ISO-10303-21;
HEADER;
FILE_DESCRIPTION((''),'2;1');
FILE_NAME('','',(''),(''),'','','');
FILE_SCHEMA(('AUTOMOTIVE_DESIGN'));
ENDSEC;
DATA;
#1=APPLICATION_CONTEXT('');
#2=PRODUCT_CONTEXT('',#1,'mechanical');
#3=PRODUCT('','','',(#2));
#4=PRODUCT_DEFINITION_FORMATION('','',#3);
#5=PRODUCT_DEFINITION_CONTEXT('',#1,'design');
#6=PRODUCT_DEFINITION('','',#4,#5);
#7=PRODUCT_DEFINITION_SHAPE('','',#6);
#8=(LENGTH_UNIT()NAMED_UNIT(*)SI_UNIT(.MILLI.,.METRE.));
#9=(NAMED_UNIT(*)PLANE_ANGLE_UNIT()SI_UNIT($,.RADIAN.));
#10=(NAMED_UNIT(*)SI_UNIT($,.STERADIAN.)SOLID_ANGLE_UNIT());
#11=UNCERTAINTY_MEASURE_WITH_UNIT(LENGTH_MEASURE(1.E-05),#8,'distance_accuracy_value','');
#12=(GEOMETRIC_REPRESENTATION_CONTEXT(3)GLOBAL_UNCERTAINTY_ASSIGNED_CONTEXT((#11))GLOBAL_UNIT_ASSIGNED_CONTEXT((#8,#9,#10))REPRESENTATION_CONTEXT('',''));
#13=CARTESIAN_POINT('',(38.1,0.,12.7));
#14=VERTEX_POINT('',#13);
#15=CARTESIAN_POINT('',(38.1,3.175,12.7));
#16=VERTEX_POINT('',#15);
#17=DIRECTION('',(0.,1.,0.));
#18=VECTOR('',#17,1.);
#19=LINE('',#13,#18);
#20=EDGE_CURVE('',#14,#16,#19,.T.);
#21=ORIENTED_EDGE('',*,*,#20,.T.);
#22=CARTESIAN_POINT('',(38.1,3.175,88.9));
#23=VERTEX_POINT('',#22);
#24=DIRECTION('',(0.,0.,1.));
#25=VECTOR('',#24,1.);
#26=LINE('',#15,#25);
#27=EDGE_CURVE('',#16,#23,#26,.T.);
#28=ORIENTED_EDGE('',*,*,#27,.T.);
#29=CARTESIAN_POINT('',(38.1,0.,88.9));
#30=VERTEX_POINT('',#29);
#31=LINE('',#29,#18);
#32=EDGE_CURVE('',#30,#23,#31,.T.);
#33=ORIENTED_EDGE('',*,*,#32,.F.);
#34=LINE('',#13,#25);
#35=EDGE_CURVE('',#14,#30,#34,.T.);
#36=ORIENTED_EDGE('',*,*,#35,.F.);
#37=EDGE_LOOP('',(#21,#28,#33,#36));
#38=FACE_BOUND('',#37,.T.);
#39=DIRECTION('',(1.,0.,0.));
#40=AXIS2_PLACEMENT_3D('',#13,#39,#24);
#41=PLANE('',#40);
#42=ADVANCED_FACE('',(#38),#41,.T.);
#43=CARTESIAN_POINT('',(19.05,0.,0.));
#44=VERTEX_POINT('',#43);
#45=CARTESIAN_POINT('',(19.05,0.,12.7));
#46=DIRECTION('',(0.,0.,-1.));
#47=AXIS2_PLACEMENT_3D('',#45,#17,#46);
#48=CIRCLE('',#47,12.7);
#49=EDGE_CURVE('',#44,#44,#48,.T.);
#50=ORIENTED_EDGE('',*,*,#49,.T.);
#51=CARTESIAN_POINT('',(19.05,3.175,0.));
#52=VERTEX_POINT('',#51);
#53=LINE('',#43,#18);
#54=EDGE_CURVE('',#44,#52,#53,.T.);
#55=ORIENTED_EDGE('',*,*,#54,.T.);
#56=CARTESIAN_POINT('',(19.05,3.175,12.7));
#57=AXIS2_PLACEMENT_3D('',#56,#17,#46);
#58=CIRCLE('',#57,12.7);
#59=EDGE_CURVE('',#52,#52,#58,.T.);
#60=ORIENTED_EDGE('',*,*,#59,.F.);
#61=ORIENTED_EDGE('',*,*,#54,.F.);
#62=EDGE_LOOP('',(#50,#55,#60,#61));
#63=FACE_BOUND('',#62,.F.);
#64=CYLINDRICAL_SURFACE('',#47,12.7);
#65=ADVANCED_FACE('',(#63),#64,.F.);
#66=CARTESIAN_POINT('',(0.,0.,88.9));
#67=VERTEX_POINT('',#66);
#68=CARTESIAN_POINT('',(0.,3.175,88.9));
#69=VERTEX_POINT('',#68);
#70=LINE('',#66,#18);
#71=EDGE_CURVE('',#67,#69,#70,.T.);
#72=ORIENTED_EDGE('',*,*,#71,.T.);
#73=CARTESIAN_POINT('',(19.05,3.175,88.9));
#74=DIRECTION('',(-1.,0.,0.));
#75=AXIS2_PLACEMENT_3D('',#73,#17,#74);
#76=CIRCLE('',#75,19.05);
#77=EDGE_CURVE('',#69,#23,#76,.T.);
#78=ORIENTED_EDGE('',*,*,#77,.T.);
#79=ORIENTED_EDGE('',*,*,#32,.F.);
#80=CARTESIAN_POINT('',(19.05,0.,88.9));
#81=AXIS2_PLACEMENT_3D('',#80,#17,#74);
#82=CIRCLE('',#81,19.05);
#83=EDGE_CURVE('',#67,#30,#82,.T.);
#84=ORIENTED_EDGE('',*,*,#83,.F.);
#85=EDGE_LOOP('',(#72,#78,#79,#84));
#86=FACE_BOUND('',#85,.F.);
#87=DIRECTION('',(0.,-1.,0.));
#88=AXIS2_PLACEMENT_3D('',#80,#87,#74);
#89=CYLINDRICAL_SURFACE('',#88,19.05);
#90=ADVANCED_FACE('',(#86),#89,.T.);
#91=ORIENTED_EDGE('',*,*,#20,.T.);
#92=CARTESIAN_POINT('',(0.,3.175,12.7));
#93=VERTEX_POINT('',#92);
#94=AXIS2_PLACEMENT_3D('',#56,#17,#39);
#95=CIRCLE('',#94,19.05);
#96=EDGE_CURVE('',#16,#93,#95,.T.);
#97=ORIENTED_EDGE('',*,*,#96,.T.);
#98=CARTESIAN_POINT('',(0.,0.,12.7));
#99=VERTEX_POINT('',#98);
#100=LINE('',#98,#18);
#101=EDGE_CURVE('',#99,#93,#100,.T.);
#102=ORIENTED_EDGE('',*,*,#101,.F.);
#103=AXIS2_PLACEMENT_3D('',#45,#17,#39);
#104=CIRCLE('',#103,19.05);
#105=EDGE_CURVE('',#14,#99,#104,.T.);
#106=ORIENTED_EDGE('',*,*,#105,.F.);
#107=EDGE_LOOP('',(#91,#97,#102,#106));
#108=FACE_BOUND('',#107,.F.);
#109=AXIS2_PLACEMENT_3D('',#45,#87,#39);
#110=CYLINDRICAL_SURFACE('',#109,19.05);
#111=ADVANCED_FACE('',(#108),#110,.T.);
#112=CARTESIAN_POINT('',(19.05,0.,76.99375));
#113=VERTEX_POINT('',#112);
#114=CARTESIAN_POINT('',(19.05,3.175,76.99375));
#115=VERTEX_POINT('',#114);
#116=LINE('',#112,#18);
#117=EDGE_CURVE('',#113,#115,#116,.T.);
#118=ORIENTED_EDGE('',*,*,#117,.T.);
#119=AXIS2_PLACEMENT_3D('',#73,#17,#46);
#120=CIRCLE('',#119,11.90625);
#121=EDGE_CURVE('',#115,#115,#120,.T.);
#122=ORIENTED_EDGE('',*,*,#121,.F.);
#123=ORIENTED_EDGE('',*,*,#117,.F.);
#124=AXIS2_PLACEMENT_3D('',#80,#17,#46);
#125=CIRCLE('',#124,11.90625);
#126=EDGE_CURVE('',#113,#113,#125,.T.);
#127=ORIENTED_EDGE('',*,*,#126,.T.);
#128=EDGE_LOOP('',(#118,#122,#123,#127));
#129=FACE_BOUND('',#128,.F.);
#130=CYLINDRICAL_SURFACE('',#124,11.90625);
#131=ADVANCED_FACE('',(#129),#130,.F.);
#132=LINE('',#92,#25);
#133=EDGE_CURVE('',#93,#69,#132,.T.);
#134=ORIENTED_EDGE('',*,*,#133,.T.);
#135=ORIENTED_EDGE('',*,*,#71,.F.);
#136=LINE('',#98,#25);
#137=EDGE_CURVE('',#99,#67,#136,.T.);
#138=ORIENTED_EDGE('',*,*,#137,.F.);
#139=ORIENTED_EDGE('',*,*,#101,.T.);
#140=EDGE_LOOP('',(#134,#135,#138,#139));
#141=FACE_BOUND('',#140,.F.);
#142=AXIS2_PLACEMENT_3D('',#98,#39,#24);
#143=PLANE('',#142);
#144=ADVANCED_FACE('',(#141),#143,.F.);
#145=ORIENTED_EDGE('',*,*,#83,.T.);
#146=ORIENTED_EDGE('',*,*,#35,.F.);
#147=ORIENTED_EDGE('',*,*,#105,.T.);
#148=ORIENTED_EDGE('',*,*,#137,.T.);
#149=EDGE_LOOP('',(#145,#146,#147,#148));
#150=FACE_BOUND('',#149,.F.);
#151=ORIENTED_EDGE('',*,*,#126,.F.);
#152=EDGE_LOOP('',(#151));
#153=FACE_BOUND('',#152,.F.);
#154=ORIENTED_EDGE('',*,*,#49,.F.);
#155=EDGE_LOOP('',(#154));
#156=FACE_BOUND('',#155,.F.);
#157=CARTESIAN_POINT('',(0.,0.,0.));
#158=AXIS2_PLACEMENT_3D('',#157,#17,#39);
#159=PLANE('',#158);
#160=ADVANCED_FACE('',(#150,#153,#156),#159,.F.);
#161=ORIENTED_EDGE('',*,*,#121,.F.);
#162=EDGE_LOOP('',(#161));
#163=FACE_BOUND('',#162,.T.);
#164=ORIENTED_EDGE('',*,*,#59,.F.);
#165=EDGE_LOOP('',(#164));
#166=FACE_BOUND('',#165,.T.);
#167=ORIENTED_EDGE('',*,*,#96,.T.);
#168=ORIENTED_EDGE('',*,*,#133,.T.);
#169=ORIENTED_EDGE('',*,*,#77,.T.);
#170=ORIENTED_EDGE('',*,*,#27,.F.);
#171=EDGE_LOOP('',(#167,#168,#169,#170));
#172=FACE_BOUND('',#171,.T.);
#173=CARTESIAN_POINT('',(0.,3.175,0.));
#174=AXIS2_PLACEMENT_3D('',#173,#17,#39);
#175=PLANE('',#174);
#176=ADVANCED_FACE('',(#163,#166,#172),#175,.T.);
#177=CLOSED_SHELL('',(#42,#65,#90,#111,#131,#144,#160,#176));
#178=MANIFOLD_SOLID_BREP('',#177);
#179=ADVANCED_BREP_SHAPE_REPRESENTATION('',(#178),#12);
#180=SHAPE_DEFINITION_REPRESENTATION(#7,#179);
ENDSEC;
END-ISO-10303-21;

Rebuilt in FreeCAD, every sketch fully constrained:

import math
import FreeCAD as App
import Part
import Sketcher
from FreeCAD import Vector
Q = App.Units.Quantity

doc = App.newDocument("Part")
body = doc.addObject("PartDesign::Body", "Body")

# Sketch on XZ plane
sketch1 = body.newObject("Sketcher::SketchObject", "Sketch")
sketch1.AttachmentSupport = (doc.getObject("XZ_Plane"), [""])
sketch1.MapMode = "FlatFace"
sketch1.addGeometry(Part.LineSegment(Vector(38.1, 88.9, 0), Vector(38.1, 12.7, 0)), False)
sketch1.addGeometry(Part.ArcOfCircle(Part.Circle(Vector(19.05, 12.7, 0), Vector(0, 0, 1), 19.05), math.radians(180), math.radians(360)), False)
sketch1.addGeometry(Part.LineSegment(Vector(0, 12.7, 0), Vector(0, 88.9, 0)), False)
sketch1.addGeometry(Part.ArcOfCircle(Part.Circle(Vector(19.05, 88.9, 0), Vector(0, 0, 1), 19.05), math.radians(0), math.radians(180)), False)
sketch1.addConstraint(Sketcher.Constraint("Tangent", 0, 2, 1, 2))
sketch1.addConstraint(Sketcher.Constraint("Tangent", 1, 1, 2, 1))
sketch1.addConstraint(Sketcher.Constraint("Tangent", 2, 2, 3, 2))
sketch1.addConstraint(Sketcher.Constraint("Tangent", 3, 1, 0, 1))
sketch1.addConstraint(Sketcher.Constraint("Vertical", 0))
sketch1.addConstraint(Sketcher.Constraint("Vertical", 2))
sketch1.addConstraint(Sketcher.Constraint("PointOnObject", 1, 1, -2))
sketch1.addConstraint(Sketcher.Constraint("DistanceY", 0, 2, 0, 1, Q("3 in")))
sketch1.addConstraint(Sketcher.Constraint("Radius", 1, Q("0.75 in")))
sketch1.addConstraint(Sketcher.Constraint("DistanceY", -1, 1, 1, 3, Q("0.5 in")))
pad1 = body.newObject("PartDesign::Pad", "Pad")
pad1.Profile = sketch1
pad1.Length = Q("0.125 in")
pad1.Reversed = True

# Sketch on XZ plane
sketch2 = body.newObject("Sketcher::SketchObject", "Sketch001")
sketch2.AttachmentSupport = (doc.getObject("XZ_Plane"), [""])
sketch2.MapMode = "FlatFace"
sketch2.addGeometry(Part.Circle(Vector(19.05, 88.9, 0), Vector(0, 0, 1), 11.90625), False)
sketch2.addConstraint(Sketcher.Constraint("Diameter", 0, Q("0.9375 in")))
sketch2.addConstraint(Sketcher.Constraint("DistanceY", -1, 1, 0, 3, Q("3.5 in")))
sketch2.addConstraint(Sketcher.Constraint("DistanceX", -1, 1, 0, 3, Q("0.75 in")))
doc.recompute()
hole = body.newObject("PartDesign::Hole", "Hole")
hole.Profile = sketch2
hole.ThreadType = "None"
hole.Diameter = Q("0.9375 in")
hole.DepthType = "ThroughAll"

# Sketch on XZ plane
sketch3 = body.newObject("Sketcher::SketchObject", "Sketch002")
sketch3.AttachmentSupport = (doc.getObject("XZ_Plane"), [""])
sketch3.MapMode = "FlatFace"
sketch3.addGeometry(Part.Circle(Vector(19.05, 12.7, 0), Vector(0, 0, 1), 12.7), False)
sketch3.addConstraint(Sketcher.Constraint("Diameter", 0, Q("1 in")))
sketch3.addConstraint(Sketcher.Constraint("DistanceY", -1, 1, 0, 3, Q("0.5 in")))
sketch3.addConstraint(Sketcher.Constraint("DistanceX", -1, 1, 0, 3, Q("0.75 in")))
doc.recompute()
hole2 = body.newObject("PartDesign::Hole", "Hole001")
hole2.Profile = sketch3
hole2.ThreadType = "None"
hole2.Diameter = Q("1 in")
hole2.DepthType = "ThroughAll"

doc.recompute()
